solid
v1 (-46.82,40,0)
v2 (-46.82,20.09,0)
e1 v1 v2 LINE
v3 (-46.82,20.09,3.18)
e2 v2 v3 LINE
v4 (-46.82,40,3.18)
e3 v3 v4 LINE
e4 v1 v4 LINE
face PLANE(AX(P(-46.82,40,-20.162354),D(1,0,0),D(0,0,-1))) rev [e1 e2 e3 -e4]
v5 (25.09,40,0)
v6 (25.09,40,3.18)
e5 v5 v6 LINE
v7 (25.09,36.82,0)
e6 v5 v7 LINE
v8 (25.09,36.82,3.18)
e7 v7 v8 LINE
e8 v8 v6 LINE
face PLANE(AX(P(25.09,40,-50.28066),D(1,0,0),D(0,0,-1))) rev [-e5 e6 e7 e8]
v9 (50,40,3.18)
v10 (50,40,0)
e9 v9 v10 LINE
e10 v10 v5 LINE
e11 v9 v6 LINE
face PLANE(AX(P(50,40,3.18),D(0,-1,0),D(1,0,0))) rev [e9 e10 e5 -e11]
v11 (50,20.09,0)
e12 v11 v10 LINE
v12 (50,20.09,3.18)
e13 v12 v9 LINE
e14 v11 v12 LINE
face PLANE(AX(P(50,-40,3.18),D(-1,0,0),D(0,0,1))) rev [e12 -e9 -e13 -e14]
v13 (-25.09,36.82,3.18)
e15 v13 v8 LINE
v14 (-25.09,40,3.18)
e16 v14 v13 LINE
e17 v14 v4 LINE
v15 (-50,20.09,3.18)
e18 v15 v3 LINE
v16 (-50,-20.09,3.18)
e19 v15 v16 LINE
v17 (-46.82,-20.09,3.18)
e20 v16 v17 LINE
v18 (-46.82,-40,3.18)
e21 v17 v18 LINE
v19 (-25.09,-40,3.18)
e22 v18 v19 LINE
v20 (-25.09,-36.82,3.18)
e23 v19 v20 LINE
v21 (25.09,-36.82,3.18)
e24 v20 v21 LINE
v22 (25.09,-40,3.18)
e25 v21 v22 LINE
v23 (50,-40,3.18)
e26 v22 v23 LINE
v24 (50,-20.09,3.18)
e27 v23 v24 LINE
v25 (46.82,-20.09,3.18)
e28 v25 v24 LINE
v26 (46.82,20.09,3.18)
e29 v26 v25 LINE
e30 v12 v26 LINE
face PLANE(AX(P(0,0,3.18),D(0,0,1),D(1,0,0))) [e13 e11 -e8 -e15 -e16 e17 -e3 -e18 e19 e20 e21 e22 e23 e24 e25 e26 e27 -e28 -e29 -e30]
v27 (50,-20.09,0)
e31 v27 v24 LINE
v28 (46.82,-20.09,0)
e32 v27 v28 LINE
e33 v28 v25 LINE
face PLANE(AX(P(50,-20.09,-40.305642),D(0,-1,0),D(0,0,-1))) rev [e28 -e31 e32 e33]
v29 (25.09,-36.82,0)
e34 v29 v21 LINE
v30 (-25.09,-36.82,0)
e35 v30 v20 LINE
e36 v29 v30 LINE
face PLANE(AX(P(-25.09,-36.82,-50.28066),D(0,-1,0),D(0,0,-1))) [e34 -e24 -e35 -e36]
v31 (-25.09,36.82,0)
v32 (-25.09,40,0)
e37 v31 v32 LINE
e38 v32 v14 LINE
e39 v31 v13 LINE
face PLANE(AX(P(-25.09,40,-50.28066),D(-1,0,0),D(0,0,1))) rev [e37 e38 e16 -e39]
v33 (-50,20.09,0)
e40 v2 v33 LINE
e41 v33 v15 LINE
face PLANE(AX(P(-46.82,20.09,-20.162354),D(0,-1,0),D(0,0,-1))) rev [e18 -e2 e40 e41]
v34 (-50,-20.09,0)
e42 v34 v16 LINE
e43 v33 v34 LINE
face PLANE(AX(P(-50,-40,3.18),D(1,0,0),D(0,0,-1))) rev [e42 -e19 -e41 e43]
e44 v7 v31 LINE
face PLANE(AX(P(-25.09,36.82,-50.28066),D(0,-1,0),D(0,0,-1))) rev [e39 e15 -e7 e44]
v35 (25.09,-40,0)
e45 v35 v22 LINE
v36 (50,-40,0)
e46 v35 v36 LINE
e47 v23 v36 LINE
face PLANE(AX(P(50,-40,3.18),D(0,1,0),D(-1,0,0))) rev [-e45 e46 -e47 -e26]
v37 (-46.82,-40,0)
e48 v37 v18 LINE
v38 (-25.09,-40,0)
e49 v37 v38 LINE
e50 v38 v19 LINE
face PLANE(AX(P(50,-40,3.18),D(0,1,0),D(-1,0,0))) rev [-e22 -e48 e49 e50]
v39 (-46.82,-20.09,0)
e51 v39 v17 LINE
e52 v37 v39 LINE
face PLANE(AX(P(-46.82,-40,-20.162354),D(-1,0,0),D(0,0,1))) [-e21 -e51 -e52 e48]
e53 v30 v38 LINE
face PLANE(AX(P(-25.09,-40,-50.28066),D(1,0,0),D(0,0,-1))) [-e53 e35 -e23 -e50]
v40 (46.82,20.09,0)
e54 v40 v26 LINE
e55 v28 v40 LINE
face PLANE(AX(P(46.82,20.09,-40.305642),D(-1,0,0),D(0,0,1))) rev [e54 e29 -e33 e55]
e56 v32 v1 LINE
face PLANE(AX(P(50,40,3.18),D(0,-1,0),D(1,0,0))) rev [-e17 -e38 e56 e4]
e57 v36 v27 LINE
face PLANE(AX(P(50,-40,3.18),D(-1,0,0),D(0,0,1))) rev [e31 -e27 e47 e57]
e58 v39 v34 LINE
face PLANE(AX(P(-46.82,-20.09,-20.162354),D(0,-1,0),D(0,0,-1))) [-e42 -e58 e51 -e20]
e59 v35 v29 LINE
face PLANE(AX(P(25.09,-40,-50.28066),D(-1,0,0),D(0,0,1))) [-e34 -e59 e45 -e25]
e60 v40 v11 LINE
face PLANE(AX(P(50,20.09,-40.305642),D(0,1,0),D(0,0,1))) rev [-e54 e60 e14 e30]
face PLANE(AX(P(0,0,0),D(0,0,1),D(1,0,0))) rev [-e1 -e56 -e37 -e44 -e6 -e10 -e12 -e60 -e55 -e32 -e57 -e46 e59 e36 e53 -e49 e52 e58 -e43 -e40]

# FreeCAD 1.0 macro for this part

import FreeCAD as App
import Part
import Sketcher

V = App.Vector
Q = App.Units.Quantity

doc = App.newDocument("Part")
params = doc.addObject("Spreadsheet::Sheet", "Params")
for row, (alias, value) in enumerate([
    ("sketch1_width", "100 mm"),
    ("sketch1_height", "80 mm"),
    ("pad1_length", "3.18 mm"),
    ("sketch2_width", "50.18 mm"),
    ("sketch2_height", "3.18 mm"),
    ("pocket1_length", "3.18 mm"),
    ("sketch3_width", "3.18 mm"),
    ("sketch3_height", "40.18 mm"),
    ("pocket2_length", "3.18 mm"),
    ("sketch4_width", "3.18 mm"),
    ("sketch4_height", "19.91 mm"),
    ("pocket3_length", "3.18 mm"),
], start=1):
    params.set(f"A{row}", alias)
    params.set(f"B{row}", "=" + value)
    params.setAlias(f"B{row}", alias)

body = doc.addObject("PartDesign::Body", "Body")

# Sketch on XY plane
sketch1 = body.newObject("Sketcher::SketchObject", "Sketch")
sketch1.AttachmentSupport = (doc.getObject("XY_Plane"), [""])
sketch1.MapMode = "FlatFace"
sketch1.addGeometry(Part.LineSegment(V(-50, 40, 0), V(-50, -40, 0)), False)
sketch1.addGeometry(Part.LineSegment(V(-50, -40, 0), V(50, -40, 0)), False)
sketch1.addGeometry(Part.LineSegment(V(50, -40, 0), V(50, 40, 0)), False)
sketch1.addGeometry(Part.LineSegment(V(50, 40, 0), V(-50, 40, 0)), False)
sketch1.addConstraint(Sketcher.Constraint("Coincident", 0, 2, 1, 1))
sketch1.addConstraint(Sketcher.Constraint("Coincident", 1, 2, 2, 1))
sketch1.addConstraint(Sketcher.Constraint("Coincident", 2, 2, 3, 1))
sketch1.addConstraint(Sketcher.Constraint("Coincident", 3, 2, 0, 1))
sketch1.addConstraint(Sketcher.Constraint("Vertical", 0))
sketch1.addConstraint(Sketcher.Constraint("Horizontal", 1))
sketch1.addConstraint(Sketcher.Constraint("Vertical", 2))
sketch1.addConstraint(Sketcher.Constraint("Horizontal", 3))
sketch1.addConstraint(Sketcher.Constraint("Symmetric", 0, 2, 2, 2, -1, 1))
sketch1.addConstraint(Sketcher.Constraint("DistanceX", 1, 1, 1, 2, Q("100 mm")))
sketch1.addConstraint(Sketcher.Constraint("DistanceY", 0, 2, 0, 1, Q("80 mm")))
sketch1.setExpression("Constraints[9]", "Params.sketch1_width")
sketch1.setExpression("Constraints[10]", "Params.sketch1_height")
pad1 = body.newObject("PartDesign::Pad", "Pad")
pad1.Profile = sketch1
pad1.setExpression("Length", "Params.pad1_length")

# Sketch on XY plane
sketch2 = body.newObject("Sketcher::SketchObject", "Sketch001")
sketch2.AttachmentSupport = (doc.getObject("XY_Plane"), [""])
sketch2.MapMode = "FlatFace"
sketch2.AttachmentOffset = App.Placement(V(0, 0, 3.18), App.Rotation())
sketch2.addGeometry(Part.LineSegment(V(-25.09, 40, 0), V(-25.09, 36.82, 0)), False)
sketch2.addGeometry(Part.LineSegment(V(-25.09, 36.82, 0), V(25.09, 36.82, 0)), False)
sketch2.addGeometry(Part.LineSegment(V(25.09, 36.82, 0), V(25.09, 40, 0)), False)
sketch2.addGeometry(Part.LineSegment(V(25.09, 40, 0), V(-25.09, 40, 0)), False)
sketch2.addConstraint(Sketcher.Constraint("Coincident", 0, 2, 1, 1))
sketch2.addConstraint(Sketcher.Constraint("Coincident", 1, 2, 2, 1))
sketch2.addConstraint(Sketcher.Constraint("Coincident", 2, 2, 3, 1))
sketch2.addConstraint(Sketcher.Constraint("Coincident", 3, 2, 0, 1))
sketch2.addConstraint(Sketcher.Constraint("Vertical", 0))
sketch2.addConstraint(Sketcher.Constraint("Horizontal", 1))
sketch2.addConstraint(Sketcher.Constraint("Vertical", 2))
sketch2.addConstraint(Sketcher.Constraint("Horizontal", 3))
sketch2.addConstraint(Sketcher.Constraint("DistanceY", -1, 1, 2, 2, Q("40 mm")))
sketch2.addConstraint(Sketcher.Constraint("DistanceX", 1, 1, 1, 2, Q("50.18 mm")))
sketch2.addConstraint(Sketcher.Constraint("DistanceY", 0, 2, 0, 1, Q("3.18 mm")))
sketch2.addConstraint(Sketcher.Constraint("DistanceX", 0, 2, -1, 1, Q("25.09 mm")))
sketch2.setExpression("Constraints[9]", "Params.sketch2_width")
sketch2.setExpression("Constraints[10]", "Params.sketch2_height")
pocket1 = body.newObject("PartDesign::Pocket", "Pocket")
pocket1.Profile = sketch2
pocket1.setExpression("Length", "Params.pocket1_length")
doc.recompute()

mirrored = body.newObject("PartDesign::Mirrored", "Mirrored")
mirrored.Originals = [pocket1]
mirrored.MirrorPlane = (doc.getObject("XZ_Plane"), [""])
body.Tip = mirrored

# Sketch on XY plane
sketch3 = body.newObject("Sketcher::SketchObject", "Sketch002")
sketch3.AttachmentSupport = (doc.getObject("XY_Plane"), [""])
sketch3.MapMode = "FlatFace"
sketch3.AttachmentOffset = App.Placement(V(0, 0, 3.18), App.Rotation())
sketch3.addGeometry(Part.LineSegment(V(46.82, 20.09, 0), V(46.82, -20.09, 0)), False)
sketch3.addGeometry(Part.LineSegment(V(46.82, -20.09, 0), V(50, -20.09, 0)), False)
sketch3.addGeometry(Part.LineSegment(V(50, -20.09, 0), V(50, 20.09, 0)), False)
sketch3.addGeometry(Part.LineSegment(V(50, 20.09, 0), V(46.82, 20.09, 0)), False)
sketch3.addConstraint(Sketcher.Constraint("Coincident", 0, 2, 1, 1))
sketch3.addConstraint(Sketcher.Constraint("Coincident", 1, 2, 2, 1))
sketch3.addConstraint(Sketcher.Constraint("Coincident", 2, 2, 3, 1))
sketch3.addConstraint(Sketcher.Constraint("Coincident", 3, 2, 0, 1))
sketch3.addConstraint(Sketcher.Constraint("Vertical", 0))
sketch3.addConstraint(Sketcher.Constraint("Horizontal", 1))
sketch3.addConstraint(Sketcher.Constraint("Vertical", 2))
sketch3.addConstraint(Sketcher.Constraint("Horizontal", 3))
sketch3.addConstraint(Sketcher.Constraint("DistanceX", -1, 1, 1, 2, Q("50 mm")))
sketch3.addConstraint(Sketcher.Constraint("DistanceX", 1, 1, 1, 2, Q("3.18 mm")))
sketch3.addConstraint(Sketcher.Constraint("DistanceY", 0, 2, 0, 1, Q("40.18 mm")))
sketch3.addConstraint(Sketcher.Constraint("DistanceY", 0, 2, -1, 1, Q("20.09 mm")))
sketch3.setExpression("Constraints[9]", "Params.sketch3_width")
sketch3.setExpression("Constraints[10]", "Params.sketch3_height")
pocket2 = body.newObject("PartDesign::Pocket", "Pocket001")
pocket2.Profile = sketch3
pocket2.setExpression("Length", "Params.pocket2_length")

# Sketch on XY plane
sketch4 = body.newObject("Sketcher::SketchObject", "Sketch003")
sketch4.AttachmentSupport = (doc.getObject("XY_Plane"), [""])
sketch4.MapMode = "FlatFace"
sketch4.AttachmentOffset = App.Placement(V(0, 0, 3.18), App.Rotation())
sketch4.addGeometry(Part.LineSegment(V(-50, 40, 0), V(-50, 20.09, 0)), False)
sketch4.addGeometry(Part.LineSegment(V(-50, 20.09, 0), V(-46.82, 20.09, 0)), False)
sketch4.addGeometry(Part.LineSegment(V(-46.82, 20.09, 0), V(-46.82, 40, 0)), False)
sketch4.addGeometry(Part.LineSegment(V(-46.82, 40, 0), V(-50, 40, 0)), False)
sketch4.addConstraint(Sketcher.Constraint("Coincident", 0, 2, 1, 1))
sketch4.addConstraint(Sketcher.Constraint("Coincident", 1, 2, 2, 1))
sketch4.addConstraint(Sketcher.Constraint("Coincident", 2, 2, 3, 1))
sketch4.addConstraint(Sketcher.Constraint("Coincident", 3, 2, 0, 1))
sketch4.addConstraint(Sketcher.Constraint("Vertical", 0))
sketch4.addConstraint(Sketcher.Constraint("Horizontal", 1))
sketch4.addConstraint(Sketcher.Constraint("Vertical", 2))
sketch4.addConstraint(Sketcher.Constraint("Horizontal", 3))
sketch4.addConstraint(Sketcher.Constraint("DistanceX", 0, 2, -1, 1, Q("50 mm")))
sketch4.addConstraint(Sketcher.Constraint("DistanceY", -1, 1, 2, 2, Q("40 mm")))
sketch4.addConstraint(Sketcher.Constraint("DistanceX", 1, 1, 1, 2, Q("3.18 mm")))
sketch4.addConstraint(Sketcher.Constraint("DistanceY", 0, 2, 0, 1, Q("19.91 mm")))
sketch4.setExpression("Constraints[10]", "Params.sketch4_width")
sketch4.setExpression("Constraints[11]", "Params.sketch4_height")
pocket3 = body.newObject("PartDesign::Pocket", "Pocket002")
pocket3.Profile = sketch4
pocket3.setExpression("Length", "Params.pocket3_length")
doc.recompute()

mirrored2 = body.newObject("PartDesign::Mirrored", "Mirrored001")
mirrored2.Originals = [pocket3]
mirrored2.MirrorPlane = (doc.getObject("XZ_Plane"), [""])
body.Tip = mirrored2

doc.recompute()
